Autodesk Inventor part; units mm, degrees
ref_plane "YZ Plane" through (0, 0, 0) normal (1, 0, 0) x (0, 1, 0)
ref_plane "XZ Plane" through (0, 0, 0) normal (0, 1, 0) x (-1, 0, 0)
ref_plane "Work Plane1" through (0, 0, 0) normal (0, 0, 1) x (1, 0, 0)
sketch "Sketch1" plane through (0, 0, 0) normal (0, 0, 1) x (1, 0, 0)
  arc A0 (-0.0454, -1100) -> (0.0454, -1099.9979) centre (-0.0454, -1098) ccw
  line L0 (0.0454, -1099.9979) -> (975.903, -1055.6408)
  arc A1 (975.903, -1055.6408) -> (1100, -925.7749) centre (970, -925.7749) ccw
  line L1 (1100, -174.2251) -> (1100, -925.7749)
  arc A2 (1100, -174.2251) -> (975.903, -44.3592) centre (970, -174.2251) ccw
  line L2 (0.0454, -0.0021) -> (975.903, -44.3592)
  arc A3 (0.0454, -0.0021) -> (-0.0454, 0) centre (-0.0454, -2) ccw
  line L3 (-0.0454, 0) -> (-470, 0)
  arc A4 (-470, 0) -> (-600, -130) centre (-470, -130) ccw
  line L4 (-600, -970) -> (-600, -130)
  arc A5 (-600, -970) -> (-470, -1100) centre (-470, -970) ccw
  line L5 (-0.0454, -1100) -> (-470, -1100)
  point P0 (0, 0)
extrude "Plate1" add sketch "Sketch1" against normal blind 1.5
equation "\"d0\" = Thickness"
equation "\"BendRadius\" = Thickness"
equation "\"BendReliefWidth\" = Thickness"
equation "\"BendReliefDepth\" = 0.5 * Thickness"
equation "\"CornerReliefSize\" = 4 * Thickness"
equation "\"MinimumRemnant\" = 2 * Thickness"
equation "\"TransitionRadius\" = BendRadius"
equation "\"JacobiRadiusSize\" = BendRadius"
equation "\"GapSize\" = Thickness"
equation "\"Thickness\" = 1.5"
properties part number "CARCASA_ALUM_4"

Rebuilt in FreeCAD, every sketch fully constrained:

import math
import FreeCAD as App
import Part
import Sketcher

doc = App.newDocument("Part")
body = doc.addObject("PartDesign::Body", "Body")

sketch1 = doc.addObject("Sketcher::SketchObject", "Sketch")
body.addObject(sketch1)
sketch1.AttachmentSupport = (doc.XY_Plane, [""])
sketch1.MapMode = "FlatFace"
sketch1.addGeometry(Part.LineSegment(App.Vector(-470, -1100, 0), App.Vector(-0.0454, -1100, 0)), False)
sketch1.addGeometry(Part.ArcOfCircle(Part.Circle(App.Vector(-0.044598, -1098.070603, 0), App.Vector(0, 0, 1), 1.929397), math.radians(-90.023807), math.radians(-87.32642)), False)
sketch1.addGeometry(Part.LineSegment(App.Vector(0.0454, -1099.9979, 0), App.Vector(975.903, -1055.6408, 0)), False)
sketch1.addGeometry(Part.ArcOfCircle(Part.Circle(App.Vector(970, -925.7749, 0), App.Vector(0, 0, 1), 129.99999), math.radians(-87.397436), math.radians(0)), False)
sketch1.addGeometry(Part.LineSegment(App.Vector(1100, -925.7749, 0), App.Vector(1100, -174.2251, 0)), False)
sketch1.addGeometry(Part.ArcOfCircle(Part.Circle(App.Vector(970, -174.2251, 0), App.Vector(0, 0, 1), 130), math.radians(0), math.radians(87.397436)), False)
sketch1.addGeometry(Part.LineSegment(App.Vector(975.903, -44.3592, 0), App.Vector(0.0454, -0.0021, 0)), False)
sketch1.addGeometry(Part.ArcOfCircle(Part.Circle(App.Vector(-0.047987, -2.075926, 0), App.Vector(0, 0, 1), 2.075928), math.radians(87.421635), math.radians(89.928592)), False)
sketch1.addGeometry(Part.LineSegment(App.Vector(-0.0454, 0, 0), App.Vector(-470, 0, 0)), False)
sketch1.addGeometry(Part.ArcOfCircle(Part.Circle(App.Vector(-470, -130, 0), App.Vector(0, 0, 1), 130), math.radians(90), math.radians(180)), False)
sketch1.addGeometry(Part.LineSegment(App.Vector(-600, -130, 0), App.Vector(-600, -970, 0)), False)
sketch1.addGeometry(Part.ArcOfCircle(Part.Circle(App.Vector(-470, -970, 0), App.Vector(0, 0, 1), 130), math.radians(180), math.radians(270)), False)
sketch1.addConstraint(Sketcher.Constraint("Tangent", 0, 2, 1, 1))
sketch1.addConstraint(Sketcher.Constraint("Coincident", 1, 2, 2, 1))
sketch1.addConstraint(Sketcher.Constraint("Tangent", 2, 2, 3, 1))
sketch1.addConstraint(Sketcher.Constraint("Tangent", 3, 2, 4, 1))
sketch1.addConstraint(Sketcher.Constraint("Tangent", 4, 2, 5, 1))
sketch1.addConstraint(Sketcher.Constraint("Tangent", 5, 2, 6, 1))
sketch1.addConstraint(Sketcher.Constraint("Tangent", 6, 2, 7, 1))
sketch1.addConstraint(Sketcher.Constraint("Coincident", 7, 2, 8, 1))
sketch1.addConstraint(Sketcher.Constraint("Tangent", 8, 2, 9, 1))
sketch1.addConstraint(Sketcher.Constraint("Tangent", 9, 2, 10, 1))
sketch1.addConstraint(Sketcher.Constraint("Tangent", 10, 2, 11, 1))
sketch1.addConstraint(Sketcher.Constraint("Tangent", 11, 2, 0, 1))
sketch1.addConstraint(Sketcher.Constraint("Horizontal", 0))
sketch1.addConstraint(Sketcher.Constraint("Vertical", 4))
sketch1.addConstraint(Sketcher.Constraint("Horizontal", 8))
sketch1.addConstraint(Sketcher.Constraint("Vertical", 10))
sketch1.addConstraint(Sketcher.Constraint("Equal", 3, 5))
sketch1.addConstraint(Sketcher.Constraint("Equal", 5, 9))
sketch1.addConstraint(Sketcher.Constraint("Equal", 9, 11))
sketch1.addConstraint(Sketcher.Constraint("PointOnObject", 7, 2, -1))
sketch1.addConstraint(Sketcher.Constraint("Vertical", 1, 2, 6, 2))
sketch1.addConstraint(Sketcher.Constraint("Vertical", 0, 2, 7, 2))
sketch1.addConstraint(Sketcher.Constraint("Equal", 2, 6))
sketch1.addConstraint(Sketcher.Constraint("Radius", 3, 130.0))
sketch1.addConstraint(Sketcher.Constraint("DistanceY", 10, 2, 10, 1, 840.0))
sketch1.addConstraint(Sketcher.Constraint("DistanceX", -1, 1, 3, 3, 970.0))
sketch1.addConstraint(Sketcher.Constraint("DistanceX", 9, 3, -1, 1, 470.0))
sketch1.addConstraint(Sketcher.Constraint("Radius", 7, 2.076))
sketch1.addConstraint(Sketcher.Constraint("Radius", 1, 1.9294))
sketch1.addConstraint(Sketcher.Constraint("DistanceX", 1, 3, 1, 2, 0.09))
sketch1.addConstraint(Sketcher.Constraint("DistanceX", 0, 1, 0, 2, 469.9546))
sketch1.addConstraint(Sketcher.Constraint("DistanceY", 4, 1, 4, 2, 751.5498))
pad1 = doc.addObject("PartDesign::Pad", "Pad")
body.addObject(pad1)
pad1.Profile = sketch1
pad1.Length = 1.5
pad1.Reversed = True

doc.recompute()
